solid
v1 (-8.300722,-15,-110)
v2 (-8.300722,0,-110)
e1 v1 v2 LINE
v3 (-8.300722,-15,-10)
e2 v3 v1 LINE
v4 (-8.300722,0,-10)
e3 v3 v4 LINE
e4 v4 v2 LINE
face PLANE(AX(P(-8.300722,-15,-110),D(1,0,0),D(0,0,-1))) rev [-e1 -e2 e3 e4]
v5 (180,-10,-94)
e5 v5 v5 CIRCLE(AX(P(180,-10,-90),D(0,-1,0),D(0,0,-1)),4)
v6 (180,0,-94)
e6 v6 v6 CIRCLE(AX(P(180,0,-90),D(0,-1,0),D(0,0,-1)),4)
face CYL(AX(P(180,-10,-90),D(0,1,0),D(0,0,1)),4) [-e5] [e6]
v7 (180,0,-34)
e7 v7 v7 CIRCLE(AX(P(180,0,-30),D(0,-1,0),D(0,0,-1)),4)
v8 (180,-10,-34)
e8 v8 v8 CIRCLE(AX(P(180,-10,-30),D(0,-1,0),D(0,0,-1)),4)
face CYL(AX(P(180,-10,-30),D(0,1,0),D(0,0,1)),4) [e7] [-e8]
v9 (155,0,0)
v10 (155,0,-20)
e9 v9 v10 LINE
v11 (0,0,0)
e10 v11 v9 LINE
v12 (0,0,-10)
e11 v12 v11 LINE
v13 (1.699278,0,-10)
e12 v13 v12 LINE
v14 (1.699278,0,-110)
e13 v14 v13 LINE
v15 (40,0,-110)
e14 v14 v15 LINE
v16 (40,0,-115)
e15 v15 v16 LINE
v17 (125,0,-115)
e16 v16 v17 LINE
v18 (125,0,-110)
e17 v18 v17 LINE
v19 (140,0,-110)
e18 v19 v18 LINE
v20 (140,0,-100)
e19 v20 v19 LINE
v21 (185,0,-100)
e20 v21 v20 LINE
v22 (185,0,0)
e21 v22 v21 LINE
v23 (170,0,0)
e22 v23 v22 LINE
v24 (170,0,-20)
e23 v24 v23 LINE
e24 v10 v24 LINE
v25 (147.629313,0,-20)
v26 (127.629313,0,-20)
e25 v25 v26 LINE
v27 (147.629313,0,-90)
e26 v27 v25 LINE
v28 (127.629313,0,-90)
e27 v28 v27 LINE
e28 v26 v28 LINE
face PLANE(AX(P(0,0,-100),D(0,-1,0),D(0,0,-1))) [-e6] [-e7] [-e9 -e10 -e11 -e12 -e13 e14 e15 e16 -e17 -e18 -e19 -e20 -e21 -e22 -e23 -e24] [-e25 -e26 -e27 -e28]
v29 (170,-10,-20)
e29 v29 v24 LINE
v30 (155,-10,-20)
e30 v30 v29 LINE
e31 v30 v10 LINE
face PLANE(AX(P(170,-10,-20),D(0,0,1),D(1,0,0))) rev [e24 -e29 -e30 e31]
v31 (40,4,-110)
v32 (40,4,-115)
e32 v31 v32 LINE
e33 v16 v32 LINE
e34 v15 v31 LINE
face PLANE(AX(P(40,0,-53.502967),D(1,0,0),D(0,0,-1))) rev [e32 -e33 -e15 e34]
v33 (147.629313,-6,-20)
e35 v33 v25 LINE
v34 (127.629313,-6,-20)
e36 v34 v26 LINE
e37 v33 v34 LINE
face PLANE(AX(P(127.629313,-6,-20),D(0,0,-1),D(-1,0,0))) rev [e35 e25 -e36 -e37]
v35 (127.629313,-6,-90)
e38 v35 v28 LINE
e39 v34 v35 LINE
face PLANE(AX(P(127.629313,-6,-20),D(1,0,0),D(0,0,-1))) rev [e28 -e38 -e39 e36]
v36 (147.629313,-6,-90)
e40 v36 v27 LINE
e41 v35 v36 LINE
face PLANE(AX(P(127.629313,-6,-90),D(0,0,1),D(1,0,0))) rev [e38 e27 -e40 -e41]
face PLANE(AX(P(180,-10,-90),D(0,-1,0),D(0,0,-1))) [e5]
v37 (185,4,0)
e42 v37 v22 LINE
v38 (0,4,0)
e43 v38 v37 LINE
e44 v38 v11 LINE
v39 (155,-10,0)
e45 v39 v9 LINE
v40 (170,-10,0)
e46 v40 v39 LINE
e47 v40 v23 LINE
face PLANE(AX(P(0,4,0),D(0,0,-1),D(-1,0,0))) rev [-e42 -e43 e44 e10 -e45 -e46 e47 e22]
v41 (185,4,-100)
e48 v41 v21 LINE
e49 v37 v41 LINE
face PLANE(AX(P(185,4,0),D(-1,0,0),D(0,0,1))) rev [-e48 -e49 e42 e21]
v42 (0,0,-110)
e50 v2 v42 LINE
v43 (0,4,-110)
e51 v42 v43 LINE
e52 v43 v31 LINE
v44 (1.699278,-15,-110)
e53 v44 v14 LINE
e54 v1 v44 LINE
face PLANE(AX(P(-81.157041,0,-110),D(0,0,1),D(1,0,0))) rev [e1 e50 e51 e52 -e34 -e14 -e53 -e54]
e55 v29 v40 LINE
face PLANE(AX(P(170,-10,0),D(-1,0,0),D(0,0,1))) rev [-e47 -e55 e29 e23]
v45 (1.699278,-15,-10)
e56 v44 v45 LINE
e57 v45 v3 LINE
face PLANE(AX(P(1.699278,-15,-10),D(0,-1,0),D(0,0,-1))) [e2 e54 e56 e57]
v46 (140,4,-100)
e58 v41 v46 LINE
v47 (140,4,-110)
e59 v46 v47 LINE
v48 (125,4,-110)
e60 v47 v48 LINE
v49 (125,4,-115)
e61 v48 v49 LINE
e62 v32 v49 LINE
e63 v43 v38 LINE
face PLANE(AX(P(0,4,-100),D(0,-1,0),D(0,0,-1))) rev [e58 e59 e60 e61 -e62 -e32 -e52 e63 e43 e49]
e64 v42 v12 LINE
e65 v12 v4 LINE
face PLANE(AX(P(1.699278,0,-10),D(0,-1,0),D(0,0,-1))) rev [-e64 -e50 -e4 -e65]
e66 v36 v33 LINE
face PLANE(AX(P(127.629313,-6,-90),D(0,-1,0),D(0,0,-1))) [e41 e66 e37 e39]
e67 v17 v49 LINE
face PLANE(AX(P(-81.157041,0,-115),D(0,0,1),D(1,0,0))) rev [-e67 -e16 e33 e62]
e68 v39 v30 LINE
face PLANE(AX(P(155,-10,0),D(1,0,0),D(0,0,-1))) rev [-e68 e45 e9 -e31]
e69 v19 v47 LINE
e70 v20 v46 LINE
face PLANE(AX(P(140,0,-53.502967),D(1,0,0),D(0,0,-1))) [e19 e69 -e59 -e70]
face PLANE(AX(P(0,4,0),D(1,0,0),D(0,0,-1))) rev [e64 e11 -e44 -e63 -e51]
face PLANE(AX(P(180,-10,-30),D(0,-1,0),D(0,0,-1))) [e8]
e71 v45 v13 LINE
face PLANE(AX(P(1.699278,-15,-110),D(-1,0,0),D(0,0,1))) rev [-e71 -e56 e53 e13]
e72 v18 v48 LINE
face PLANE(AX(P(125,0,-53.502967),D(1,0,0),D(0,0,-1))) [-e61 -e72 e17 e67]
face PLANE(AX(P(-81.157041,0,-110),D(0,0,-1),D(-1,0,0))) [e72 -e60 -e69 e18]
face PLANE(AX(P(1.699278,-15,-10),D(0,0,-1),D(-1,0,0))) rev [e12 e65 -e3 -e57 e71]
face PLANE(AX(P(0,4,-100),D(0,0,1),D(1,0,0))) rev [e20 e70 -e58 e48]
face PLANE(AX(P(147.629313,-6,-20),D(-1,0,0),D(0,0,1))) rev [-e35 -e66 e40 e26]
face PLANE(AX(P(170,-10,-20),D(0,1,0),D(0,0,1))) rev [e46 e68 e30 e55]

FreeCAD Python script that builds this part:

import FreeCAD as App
import Part
import Sketcher
from FreeCAD import Vector

doc = App.newDocument("Part")
params = doc.addObject("Spreadsheet::Sheet", "Params")
for row, (alias, value) in enumerate([
    ("sketch1_width", "185 mm"),
    ("sketch1_height", "100 mm"),
    ("pad1_length", "4 mm"),
    ("sketch2_width", "40 mm"),
    ("sketch2_width2", "140 mm"),
    ("sketch2_width3", "15 mm"),
    ("sketch2_height", "5 mm"),
    ("sketch2_height2", "10 mm"),
    ("pad2_length", "4 mm"),
    ("sketch3_width", "10 mm"),
    ("sketch3_height", "100 mm"),
    ("pad3_length", "15 mm"),
    ("sketch4_width", "20 mm"),
    ("sketch4_height", "70 mm"),
    ("pad4_length", "6 mm"),
    ("sketch5_width", "15 mm"),
    ("sketch5_height", "20 mm"),
    ("pad5_length", "10 mm"),
    ("sketch6_diameter", "8 mm"),
    ("pad6_length", "10 mm"),
], start=1):
    params.set(f"A{row}", alias)
    params.set(f"B{row}", "=" + value)
    params.setAlias(f"B{row}", alias)

body = doc.addObject("PartDesign::Body", "Body")

sketch1 = body.newObject("Sketcher::SketchObject", "Sketch")
sketch1.AttachmentSupport = (doc.getObject("XZ_Plane"), [""])
sketch1.MapMode = "FlatFace"
sketch1.addGeometry(Part.LineSegment(Vector(0, -100, 0), Vector(0, 0, 0)), False)
sketch1.addGeometry(Part.LineSegment(Vector(0, 0, 0), Vector(185, 0, 0)), False)
sketch1.addGeometry(Part.LineSegment(Vector(185, 0, 0), Vector(185, -100, 0)), False)
sketch1.addGeometry(Part.LineSegment(Vector(185, -100, 0), Vector(0, -100, 0)), False)
sketch1.addConstraint(Sketcher.Constraint("Coincident", 0, 2, 1, 1))
sketch1.addConstraint(Sketcher.Constraint("Coincident", 1, 2, 2, 1))
sketch1.addConstraint(Sketcher.Constraint("Coincident", 2, 2, 3, 1))
sketch1.addConstraint(Sketcher.Constraint("Coincident", 3, 2, 0, 1))
sketch1.addConstraint(Sketcher.Constraint("Vertical", 0))
sketch1.addConstraint(Sketcher.Constraint("Horizontal", 1))
sketch1.addConstraint(Sketcher.Constraint("Vertical", 2))
sketch1.addConstraint(Sketcher.Constraint("Horizontal", 3))
sketch1.addConstraint(Sketcher.Constraint("Coincident", 0, 2, -1, 1))
sketch1.addConstraint(Sketcher.Constraint("DistanceX", 1, 1, 1, 2, 185.0))
sketch1.addConstraint(Sketcher.Constraint("DistanceY", 0, 1, 0, 2, 100.0))
sketch1.setExpression("Constraints[9]", "Params.sketch1_width")
sketch1.setExpression("Constraints[10]", "Params.sketch1_height")
pad1 = body.newObject("PartDesign::Pad", "Pad")
pad1.Profile = sketch1
pad1.setExpression("Length", "Params.pad1_length")
pad1.Reversed = True

sketch2 = body.newObject("Sketcher::SketchObject", "Sketch001")
sketch2.AttachmentSupport = (doc.getObject("XZ_Plane"), [""])
sketch2.MapMode = "FlatFace"
sketch2.AttachmentOffset = App.Placement(Vector(0, 0, -4), App.Rotation())
sketch2.addGeometry(Part.LineSegment(Vector(40, -115, 0), Vector(40, -110, 0)), False)
sketch2.addGeometry(Part.LineSegment(Vector(40, -110, 0), Vector(0, -110, 0)), False)
sketch2.addGeometry(Part.LineSegment(Vector(0, -110, 0), Vector(0, -100, 0)), False)
sketch2.addGeometry(Part.LineSegment(Vector(0, -100, 0), Vector(140, -100, 0)), False)
sketch2.addGeometry(Part.LineSegment(Vector(140, -100, 0), Vector(140, -110, 0)), False)
sketch2.addGeometry(Part.LineSegment(Vector(140, -110, 0), Vector(125, -110, 0)), False)
sketch2.addGeometry(Part.LineSegment(Vector(125, -110, 0), Vector(125, -115, 0)), False)
sketch2.addGeometry(Part.LineSegment(Vector(125, -115, 0), Vector(40, -115, 0)), False)
sketch2.addConstraint(Sketcher.Constraint("Coincident", 0, 2, 1, 1))
sketch2.addConstraint(Sketcher.Constraint("Coincident", 1, 2, 2, 1))
sketch2.addConstraint(Sketcher.Constraint("Coincident", 2, 2, 3, 1))
sketch2.addConstraint(Sketcher.Constraint("Coincident", 3, 2, 4, 1))
sketch2.addConstraint(Sketcher.Constraint("Coincident", 4, 2, 5, 1))
sketch2.addConstraint(Sketcher.Constraint("Coincident", 5, 2, 6, 1))
sketch2.addConstraint(Sketcher.Constraint("Coincident", 6, 2, 7, 1))
sketch2.addConstraint(Sketcher.Constraint("Coincident", 7, 2, 0, 1))
sketch2.addConstraint(Sketcher.Constraint("Vertical", 0))
sketch2.addConstraint(Sketcher.Constraint("Horizontal", 1))
sketch2.addConstraint(Sketcher.Constraint("Vertical", 2))
sketch2.addConstraint(Sketcher.Constraint("Horizontal", 3))
sketch2.addConstraint(Sketcher.Constraint("Vertical", 4))
sketch2.addConstraint(Sketcher.Constraint("Horizontal", 5))
sketch2.addConstraint(Sketcher.Constraint("Vertical", 6))
sketch2.addConstraint(Sketcher.Constraint("Horizontal", 7))
sketch2.addConstraint(Sketcher.Constraint("PointOnObject", 1, 2, -2))
sketch2.addConstraint(Sketcher.Constraint("Horizontal", 1, 2, 4, 2))
sketch2.addConstraint(Sketcher.Constraint("DistanceX", 1, 2, 1, 1, 40.0))
sketch2.addConstraint(Sketcher.Constraint("DistanceX", 3, 1, 3, 2, 140.0))
sketch2.addConstraint(Sketcher.Constraint("DistanceX", 5, 2, 5, 1, 15.0))
sketch2.addConstraint(Sketcher.Constraint("DistanceY", 0, 1, 0, 2, 5.0))
sketch2.addConstraint(Sketcher.Constraint("DistanceY", 2, 1, 2, 2, 10.0))
sketch2.addConstraint(Sketcher.Constraint("DistanceY", 0, 2, -1, 1, 110.0))
sketch2.setExpression("Constraints[18]", "Params.sketch2_width")
sketch2.setExpression("Constraints[19]", "Params.sketch2_width2")
sketch2.setExpression("Constraints[20]", "Params.sketch2_width3")
sketch2.setExpression("Constraints[21]", "Params.sketch2_height")
sketch2.setExpression("Constraints[22]", "Params.sketch2_height2")
pad2 = body.newObject("PartDesign::Pad", "Pad001")
pad2.Profile = sketch2
pad2.setExpression("Length", "Params.pad2_length")

sketch3 = body.newObject("Sketcher::SketchObject", "Sketch002")
sketch3.AttachmentSupport = (doc.getObject("XZ_Plane"), [""])
sketch3.MapMode = "FlatFace"
sketch3.addGeometry(Part.LineSegment(Vector(-8.300722, -10, 0), Vector(-8.300722, -110, 0)), False)
sketch3.addGeometry(Part.LineSegment(Vector(-8.300722, -110, 0), Vector(1.699278, -110, 0)), False)
sketch3.addGeometry(Part.LineSegment(Vector(1.699278, -110, 0), Vector(1.699278, -10, 0)), False)
sketch3.addGeometry(Part.LineSegment(Vector(1.699278, -10, 0), Vector(-8.300722, -10, 0)), False)
sketch3.addConstraint(Sketcher.Constraint("Coincident", 0, 2, 1, 1))
sketch3.addConstraint(Sketcher.Constraint("Coincident", 1, 2, 2, 1))
sketch3.addConstraint(Sketcher.Constraint("Coincident", 2, 2, 3, 1))
sketch3.addConstraint(Sketcher.Constraint("Coincident", 3, 2, 0, 1))
sketch3.addConstraint(Sketcher.Constraint("Vertical", 0))
sketch3.addConstraint(Sketcher.Constraint("Horizontal", 1))
sketch3.addConstraint(Sketcher.Constraint("Vertical", 2))
sketch3.addConstraint(Sketcher.Constraint("Horizontal", 3))
sketch3.addConstraint(Sketcher.Constraint("DistanceX", 1, 1, 1, 2, 10.0))
sketch3.addConstraint(Sketcher.Constraint("DistanceY", 0, 2, 0, 1, 100.0))
sketch3.addConstraint(Sketcher.Constraint("DistanceY", 0, 2, -1, 1, 110.0))
sketch3.addConstraint(Sketcher.Constraint("DistanceX", 0, 2, -1, 1, 8.300722))
sketch3.setExpression("Constraints[8]", "Params.sketch3_width")
sketch3.setExpression("Constraints[9]", "Params.sketch3_height")
pad3 = body.newObject("PartDesign::Pad", "Pad002")
pad3.Profile = sketch3
pad3.setExpression("Length", "Params.pad3_length")

sketch4 = body.newObject("Sketcher::SketchObject", "Sketch003")
sketch4.AttachmentSupport = (doc.getObject("XZ_Plane"), [""])
sketch4.MapMode = "FlatFace"
sketch4.addGeometry(Part.LineSegment(Vector(127.629313, -20, 0), Vector(127.629313, -90, 0)), False)
sketch4.addGeometry(Part.LineSegment(Vector(127.629313, -90, 0), Vector(147.629313, -90, 0)), False)
sketch4.addGeometry(Part.LineSegment(Vector(147.629313, -90, 0), Vector(147.629313, -20, 0)), False)
sketch4.addGeometry(Part.LineSegment(Vector(147.629313, -20, 0), Vector(127.629313, -20, 0)), False)
sketch4.addConstraint(Sketcher.Constraint("Coincident", 0, 2, 1, 1))
sketch4.addConstraint(Sketcher.Constraint("Coincident", 1, 2, 2, 1))
sketch4.addConstraint(Sketcher.Constraint("Coincident", 2, 2, 3, 1))
sketch4.addConstraint(Sketcher.Constraint("Coincident", 3, 2, 0, 1))
sketch4.addConstraint(Sketcher.Constraint("Vertical", 0))
sketch4.addConstraint(Sketcher.Constraint("Horizontal", 1))
sketch4.addConstraint(Sketcher.Constraint("Vertical", 2))
sketch4.addConstraint(Sketcher.Constraint("Horizontal", 3))
sketch4.addConstraint(Sketcher.Constraint("DistanceX", 1, 1, 1, 2, 20.0))
sketch4.addConstraint(Sketcher.Constraint("DistanceY", 0, 2, 0, 1, 70.0))
sketch4.addConstraint(Sketcher.Constraint("DistanceY", 0, 2, -1, 1, 90.0))
sketch4.addConstraint(Sketcher.Constraint("DistanceX", -1, 1, 0, 2, 127.629313))
sketch4.setExpression("Constraints[8]", "Params.sketch4_width")
sketch4.setExpression("Constraints[9]", "Params.sketch4_height")
pad4 = body.newObject("PartDesign::Pad", "Pad003")
pad4.Profile = sketch4
pad4.setExpression("Length", "Params.pad4_length")

sketch5 = body.newObject("Sketcher::SketchObject", "Sketch004")
sketch5.AttachmentSupport = (doc.getObject("XZ_Plane"), [""])
sketch5.MapMode = "FlatFace"
sketch5.addGeometry(Part.LineSegment(Vector(155, 0, 0), Vector(155, -20, 0)), False)
sketch5.addGeometry(Part.LineSegment(Vector(155, -20, 0), Vector(170, -20, 0)), False)
sketch5.addGeometry(Part.LineSegment(Vector(170, -20, 0), Vector(170, 0, 0)), False)
sketch5.addGeometry(Part.LineSegment(Vector(170, 0, 0), Vector(155, 0, 0)), False)
sketch5.addConstraint(Sketcher.Constraint("Coincident", 0, 2, 1, 1))
sketch5.addConstraint(Sketcher.Constraint("Coincident", 1, 2, 2, 1))
sketch5.addConstraint(Sketcher.Constraint("Coincident", 2, 2, 3, 1))
sketch5.addConstraint(Sketcher.Constraint("Coincident", 3, 2, 0, 1))
sketch5.addConstraint(Sketcher.Constraint("Vertical", 0))
sketch5.addConstraint(Sketcher.Constraint("Horizontal", 1))
sketch5.addConstraint(Sketcher.Constraint("Vertical", 2))
sketch5.addConstraint(Sketcher.Constraint("Horizontal", 3))
sketch5.addConstraint(Sketcher.Constraint("PointOnObject", 2, 2, -1))
sketch5.addConstraint(Sketcher.Constraint("DistanceX", 1, 1, 1, 2, 15.0))
sketch5.addConstraint(Sketcher.Constraint("DistanceY", 0, 2, 0, 1, 20.0))
sketch5.addConstraint(Sketcher.Constraint("DistanceX", -1, 1, 0, 2, 155.0))
sketch5.setExpression("Constraints[9]", "Params.sketch5_width")
sketch5.setExpression("Constraints[10]", "Params.sketch5_height")
pad5 = body.newObject("PartDesign::Pad", "Pad004")
pad5.Profile = sketch5
pad5.setExpression("Length", "Params.pad5_length")

sketch6 = body.newObject("Sketcher::SketchObject", "Sketch005")
sketch6.AttachmentSupport = (doc.getObject("XZ_Plane"), [""])
sketch6.MapMode = "FlatFace"
sketch6.addGeometry(Part.Circle(Vector(180, -30, 0), Vector(0, 0, 1), 4), False)
sketch6.addGeometry(Part.Circle(Vector(180, -90, 0), Vector(0, 0, 1), 4), False)
sketch6.addConstraint(Sketcher.Constraint("Equal", 0, 1))
sketch6.addConstraint(Sketcher.Constraint("Vertical", 0, 3, 1, 3))
sketch6.addConstraint(Sketcher.Constraint("Diameter", 0, 8.0))
sketch6.addConstraint(Sketcher.Constraint("DistanceX", -1, 1, 0, 3, 180.0))
sketch6.addConstraint(Sketcher.Constraint("DistanceY", 0, 3, -1, 1, 30.0))
sketch6.addConstraint(Sketcher.Constraint("DistanceY", 1, 3, -1, 1, 90.0))
sketch6.setExpression("Constraints[2]", "Params.sketch6_diameter")
pad6 = body.newObject("PartDesign::Pad", "Pad005")
pad6.Profile = sketch6
pad6.setExpression("Length", "Params.pad6_length")

doc.recompute()
